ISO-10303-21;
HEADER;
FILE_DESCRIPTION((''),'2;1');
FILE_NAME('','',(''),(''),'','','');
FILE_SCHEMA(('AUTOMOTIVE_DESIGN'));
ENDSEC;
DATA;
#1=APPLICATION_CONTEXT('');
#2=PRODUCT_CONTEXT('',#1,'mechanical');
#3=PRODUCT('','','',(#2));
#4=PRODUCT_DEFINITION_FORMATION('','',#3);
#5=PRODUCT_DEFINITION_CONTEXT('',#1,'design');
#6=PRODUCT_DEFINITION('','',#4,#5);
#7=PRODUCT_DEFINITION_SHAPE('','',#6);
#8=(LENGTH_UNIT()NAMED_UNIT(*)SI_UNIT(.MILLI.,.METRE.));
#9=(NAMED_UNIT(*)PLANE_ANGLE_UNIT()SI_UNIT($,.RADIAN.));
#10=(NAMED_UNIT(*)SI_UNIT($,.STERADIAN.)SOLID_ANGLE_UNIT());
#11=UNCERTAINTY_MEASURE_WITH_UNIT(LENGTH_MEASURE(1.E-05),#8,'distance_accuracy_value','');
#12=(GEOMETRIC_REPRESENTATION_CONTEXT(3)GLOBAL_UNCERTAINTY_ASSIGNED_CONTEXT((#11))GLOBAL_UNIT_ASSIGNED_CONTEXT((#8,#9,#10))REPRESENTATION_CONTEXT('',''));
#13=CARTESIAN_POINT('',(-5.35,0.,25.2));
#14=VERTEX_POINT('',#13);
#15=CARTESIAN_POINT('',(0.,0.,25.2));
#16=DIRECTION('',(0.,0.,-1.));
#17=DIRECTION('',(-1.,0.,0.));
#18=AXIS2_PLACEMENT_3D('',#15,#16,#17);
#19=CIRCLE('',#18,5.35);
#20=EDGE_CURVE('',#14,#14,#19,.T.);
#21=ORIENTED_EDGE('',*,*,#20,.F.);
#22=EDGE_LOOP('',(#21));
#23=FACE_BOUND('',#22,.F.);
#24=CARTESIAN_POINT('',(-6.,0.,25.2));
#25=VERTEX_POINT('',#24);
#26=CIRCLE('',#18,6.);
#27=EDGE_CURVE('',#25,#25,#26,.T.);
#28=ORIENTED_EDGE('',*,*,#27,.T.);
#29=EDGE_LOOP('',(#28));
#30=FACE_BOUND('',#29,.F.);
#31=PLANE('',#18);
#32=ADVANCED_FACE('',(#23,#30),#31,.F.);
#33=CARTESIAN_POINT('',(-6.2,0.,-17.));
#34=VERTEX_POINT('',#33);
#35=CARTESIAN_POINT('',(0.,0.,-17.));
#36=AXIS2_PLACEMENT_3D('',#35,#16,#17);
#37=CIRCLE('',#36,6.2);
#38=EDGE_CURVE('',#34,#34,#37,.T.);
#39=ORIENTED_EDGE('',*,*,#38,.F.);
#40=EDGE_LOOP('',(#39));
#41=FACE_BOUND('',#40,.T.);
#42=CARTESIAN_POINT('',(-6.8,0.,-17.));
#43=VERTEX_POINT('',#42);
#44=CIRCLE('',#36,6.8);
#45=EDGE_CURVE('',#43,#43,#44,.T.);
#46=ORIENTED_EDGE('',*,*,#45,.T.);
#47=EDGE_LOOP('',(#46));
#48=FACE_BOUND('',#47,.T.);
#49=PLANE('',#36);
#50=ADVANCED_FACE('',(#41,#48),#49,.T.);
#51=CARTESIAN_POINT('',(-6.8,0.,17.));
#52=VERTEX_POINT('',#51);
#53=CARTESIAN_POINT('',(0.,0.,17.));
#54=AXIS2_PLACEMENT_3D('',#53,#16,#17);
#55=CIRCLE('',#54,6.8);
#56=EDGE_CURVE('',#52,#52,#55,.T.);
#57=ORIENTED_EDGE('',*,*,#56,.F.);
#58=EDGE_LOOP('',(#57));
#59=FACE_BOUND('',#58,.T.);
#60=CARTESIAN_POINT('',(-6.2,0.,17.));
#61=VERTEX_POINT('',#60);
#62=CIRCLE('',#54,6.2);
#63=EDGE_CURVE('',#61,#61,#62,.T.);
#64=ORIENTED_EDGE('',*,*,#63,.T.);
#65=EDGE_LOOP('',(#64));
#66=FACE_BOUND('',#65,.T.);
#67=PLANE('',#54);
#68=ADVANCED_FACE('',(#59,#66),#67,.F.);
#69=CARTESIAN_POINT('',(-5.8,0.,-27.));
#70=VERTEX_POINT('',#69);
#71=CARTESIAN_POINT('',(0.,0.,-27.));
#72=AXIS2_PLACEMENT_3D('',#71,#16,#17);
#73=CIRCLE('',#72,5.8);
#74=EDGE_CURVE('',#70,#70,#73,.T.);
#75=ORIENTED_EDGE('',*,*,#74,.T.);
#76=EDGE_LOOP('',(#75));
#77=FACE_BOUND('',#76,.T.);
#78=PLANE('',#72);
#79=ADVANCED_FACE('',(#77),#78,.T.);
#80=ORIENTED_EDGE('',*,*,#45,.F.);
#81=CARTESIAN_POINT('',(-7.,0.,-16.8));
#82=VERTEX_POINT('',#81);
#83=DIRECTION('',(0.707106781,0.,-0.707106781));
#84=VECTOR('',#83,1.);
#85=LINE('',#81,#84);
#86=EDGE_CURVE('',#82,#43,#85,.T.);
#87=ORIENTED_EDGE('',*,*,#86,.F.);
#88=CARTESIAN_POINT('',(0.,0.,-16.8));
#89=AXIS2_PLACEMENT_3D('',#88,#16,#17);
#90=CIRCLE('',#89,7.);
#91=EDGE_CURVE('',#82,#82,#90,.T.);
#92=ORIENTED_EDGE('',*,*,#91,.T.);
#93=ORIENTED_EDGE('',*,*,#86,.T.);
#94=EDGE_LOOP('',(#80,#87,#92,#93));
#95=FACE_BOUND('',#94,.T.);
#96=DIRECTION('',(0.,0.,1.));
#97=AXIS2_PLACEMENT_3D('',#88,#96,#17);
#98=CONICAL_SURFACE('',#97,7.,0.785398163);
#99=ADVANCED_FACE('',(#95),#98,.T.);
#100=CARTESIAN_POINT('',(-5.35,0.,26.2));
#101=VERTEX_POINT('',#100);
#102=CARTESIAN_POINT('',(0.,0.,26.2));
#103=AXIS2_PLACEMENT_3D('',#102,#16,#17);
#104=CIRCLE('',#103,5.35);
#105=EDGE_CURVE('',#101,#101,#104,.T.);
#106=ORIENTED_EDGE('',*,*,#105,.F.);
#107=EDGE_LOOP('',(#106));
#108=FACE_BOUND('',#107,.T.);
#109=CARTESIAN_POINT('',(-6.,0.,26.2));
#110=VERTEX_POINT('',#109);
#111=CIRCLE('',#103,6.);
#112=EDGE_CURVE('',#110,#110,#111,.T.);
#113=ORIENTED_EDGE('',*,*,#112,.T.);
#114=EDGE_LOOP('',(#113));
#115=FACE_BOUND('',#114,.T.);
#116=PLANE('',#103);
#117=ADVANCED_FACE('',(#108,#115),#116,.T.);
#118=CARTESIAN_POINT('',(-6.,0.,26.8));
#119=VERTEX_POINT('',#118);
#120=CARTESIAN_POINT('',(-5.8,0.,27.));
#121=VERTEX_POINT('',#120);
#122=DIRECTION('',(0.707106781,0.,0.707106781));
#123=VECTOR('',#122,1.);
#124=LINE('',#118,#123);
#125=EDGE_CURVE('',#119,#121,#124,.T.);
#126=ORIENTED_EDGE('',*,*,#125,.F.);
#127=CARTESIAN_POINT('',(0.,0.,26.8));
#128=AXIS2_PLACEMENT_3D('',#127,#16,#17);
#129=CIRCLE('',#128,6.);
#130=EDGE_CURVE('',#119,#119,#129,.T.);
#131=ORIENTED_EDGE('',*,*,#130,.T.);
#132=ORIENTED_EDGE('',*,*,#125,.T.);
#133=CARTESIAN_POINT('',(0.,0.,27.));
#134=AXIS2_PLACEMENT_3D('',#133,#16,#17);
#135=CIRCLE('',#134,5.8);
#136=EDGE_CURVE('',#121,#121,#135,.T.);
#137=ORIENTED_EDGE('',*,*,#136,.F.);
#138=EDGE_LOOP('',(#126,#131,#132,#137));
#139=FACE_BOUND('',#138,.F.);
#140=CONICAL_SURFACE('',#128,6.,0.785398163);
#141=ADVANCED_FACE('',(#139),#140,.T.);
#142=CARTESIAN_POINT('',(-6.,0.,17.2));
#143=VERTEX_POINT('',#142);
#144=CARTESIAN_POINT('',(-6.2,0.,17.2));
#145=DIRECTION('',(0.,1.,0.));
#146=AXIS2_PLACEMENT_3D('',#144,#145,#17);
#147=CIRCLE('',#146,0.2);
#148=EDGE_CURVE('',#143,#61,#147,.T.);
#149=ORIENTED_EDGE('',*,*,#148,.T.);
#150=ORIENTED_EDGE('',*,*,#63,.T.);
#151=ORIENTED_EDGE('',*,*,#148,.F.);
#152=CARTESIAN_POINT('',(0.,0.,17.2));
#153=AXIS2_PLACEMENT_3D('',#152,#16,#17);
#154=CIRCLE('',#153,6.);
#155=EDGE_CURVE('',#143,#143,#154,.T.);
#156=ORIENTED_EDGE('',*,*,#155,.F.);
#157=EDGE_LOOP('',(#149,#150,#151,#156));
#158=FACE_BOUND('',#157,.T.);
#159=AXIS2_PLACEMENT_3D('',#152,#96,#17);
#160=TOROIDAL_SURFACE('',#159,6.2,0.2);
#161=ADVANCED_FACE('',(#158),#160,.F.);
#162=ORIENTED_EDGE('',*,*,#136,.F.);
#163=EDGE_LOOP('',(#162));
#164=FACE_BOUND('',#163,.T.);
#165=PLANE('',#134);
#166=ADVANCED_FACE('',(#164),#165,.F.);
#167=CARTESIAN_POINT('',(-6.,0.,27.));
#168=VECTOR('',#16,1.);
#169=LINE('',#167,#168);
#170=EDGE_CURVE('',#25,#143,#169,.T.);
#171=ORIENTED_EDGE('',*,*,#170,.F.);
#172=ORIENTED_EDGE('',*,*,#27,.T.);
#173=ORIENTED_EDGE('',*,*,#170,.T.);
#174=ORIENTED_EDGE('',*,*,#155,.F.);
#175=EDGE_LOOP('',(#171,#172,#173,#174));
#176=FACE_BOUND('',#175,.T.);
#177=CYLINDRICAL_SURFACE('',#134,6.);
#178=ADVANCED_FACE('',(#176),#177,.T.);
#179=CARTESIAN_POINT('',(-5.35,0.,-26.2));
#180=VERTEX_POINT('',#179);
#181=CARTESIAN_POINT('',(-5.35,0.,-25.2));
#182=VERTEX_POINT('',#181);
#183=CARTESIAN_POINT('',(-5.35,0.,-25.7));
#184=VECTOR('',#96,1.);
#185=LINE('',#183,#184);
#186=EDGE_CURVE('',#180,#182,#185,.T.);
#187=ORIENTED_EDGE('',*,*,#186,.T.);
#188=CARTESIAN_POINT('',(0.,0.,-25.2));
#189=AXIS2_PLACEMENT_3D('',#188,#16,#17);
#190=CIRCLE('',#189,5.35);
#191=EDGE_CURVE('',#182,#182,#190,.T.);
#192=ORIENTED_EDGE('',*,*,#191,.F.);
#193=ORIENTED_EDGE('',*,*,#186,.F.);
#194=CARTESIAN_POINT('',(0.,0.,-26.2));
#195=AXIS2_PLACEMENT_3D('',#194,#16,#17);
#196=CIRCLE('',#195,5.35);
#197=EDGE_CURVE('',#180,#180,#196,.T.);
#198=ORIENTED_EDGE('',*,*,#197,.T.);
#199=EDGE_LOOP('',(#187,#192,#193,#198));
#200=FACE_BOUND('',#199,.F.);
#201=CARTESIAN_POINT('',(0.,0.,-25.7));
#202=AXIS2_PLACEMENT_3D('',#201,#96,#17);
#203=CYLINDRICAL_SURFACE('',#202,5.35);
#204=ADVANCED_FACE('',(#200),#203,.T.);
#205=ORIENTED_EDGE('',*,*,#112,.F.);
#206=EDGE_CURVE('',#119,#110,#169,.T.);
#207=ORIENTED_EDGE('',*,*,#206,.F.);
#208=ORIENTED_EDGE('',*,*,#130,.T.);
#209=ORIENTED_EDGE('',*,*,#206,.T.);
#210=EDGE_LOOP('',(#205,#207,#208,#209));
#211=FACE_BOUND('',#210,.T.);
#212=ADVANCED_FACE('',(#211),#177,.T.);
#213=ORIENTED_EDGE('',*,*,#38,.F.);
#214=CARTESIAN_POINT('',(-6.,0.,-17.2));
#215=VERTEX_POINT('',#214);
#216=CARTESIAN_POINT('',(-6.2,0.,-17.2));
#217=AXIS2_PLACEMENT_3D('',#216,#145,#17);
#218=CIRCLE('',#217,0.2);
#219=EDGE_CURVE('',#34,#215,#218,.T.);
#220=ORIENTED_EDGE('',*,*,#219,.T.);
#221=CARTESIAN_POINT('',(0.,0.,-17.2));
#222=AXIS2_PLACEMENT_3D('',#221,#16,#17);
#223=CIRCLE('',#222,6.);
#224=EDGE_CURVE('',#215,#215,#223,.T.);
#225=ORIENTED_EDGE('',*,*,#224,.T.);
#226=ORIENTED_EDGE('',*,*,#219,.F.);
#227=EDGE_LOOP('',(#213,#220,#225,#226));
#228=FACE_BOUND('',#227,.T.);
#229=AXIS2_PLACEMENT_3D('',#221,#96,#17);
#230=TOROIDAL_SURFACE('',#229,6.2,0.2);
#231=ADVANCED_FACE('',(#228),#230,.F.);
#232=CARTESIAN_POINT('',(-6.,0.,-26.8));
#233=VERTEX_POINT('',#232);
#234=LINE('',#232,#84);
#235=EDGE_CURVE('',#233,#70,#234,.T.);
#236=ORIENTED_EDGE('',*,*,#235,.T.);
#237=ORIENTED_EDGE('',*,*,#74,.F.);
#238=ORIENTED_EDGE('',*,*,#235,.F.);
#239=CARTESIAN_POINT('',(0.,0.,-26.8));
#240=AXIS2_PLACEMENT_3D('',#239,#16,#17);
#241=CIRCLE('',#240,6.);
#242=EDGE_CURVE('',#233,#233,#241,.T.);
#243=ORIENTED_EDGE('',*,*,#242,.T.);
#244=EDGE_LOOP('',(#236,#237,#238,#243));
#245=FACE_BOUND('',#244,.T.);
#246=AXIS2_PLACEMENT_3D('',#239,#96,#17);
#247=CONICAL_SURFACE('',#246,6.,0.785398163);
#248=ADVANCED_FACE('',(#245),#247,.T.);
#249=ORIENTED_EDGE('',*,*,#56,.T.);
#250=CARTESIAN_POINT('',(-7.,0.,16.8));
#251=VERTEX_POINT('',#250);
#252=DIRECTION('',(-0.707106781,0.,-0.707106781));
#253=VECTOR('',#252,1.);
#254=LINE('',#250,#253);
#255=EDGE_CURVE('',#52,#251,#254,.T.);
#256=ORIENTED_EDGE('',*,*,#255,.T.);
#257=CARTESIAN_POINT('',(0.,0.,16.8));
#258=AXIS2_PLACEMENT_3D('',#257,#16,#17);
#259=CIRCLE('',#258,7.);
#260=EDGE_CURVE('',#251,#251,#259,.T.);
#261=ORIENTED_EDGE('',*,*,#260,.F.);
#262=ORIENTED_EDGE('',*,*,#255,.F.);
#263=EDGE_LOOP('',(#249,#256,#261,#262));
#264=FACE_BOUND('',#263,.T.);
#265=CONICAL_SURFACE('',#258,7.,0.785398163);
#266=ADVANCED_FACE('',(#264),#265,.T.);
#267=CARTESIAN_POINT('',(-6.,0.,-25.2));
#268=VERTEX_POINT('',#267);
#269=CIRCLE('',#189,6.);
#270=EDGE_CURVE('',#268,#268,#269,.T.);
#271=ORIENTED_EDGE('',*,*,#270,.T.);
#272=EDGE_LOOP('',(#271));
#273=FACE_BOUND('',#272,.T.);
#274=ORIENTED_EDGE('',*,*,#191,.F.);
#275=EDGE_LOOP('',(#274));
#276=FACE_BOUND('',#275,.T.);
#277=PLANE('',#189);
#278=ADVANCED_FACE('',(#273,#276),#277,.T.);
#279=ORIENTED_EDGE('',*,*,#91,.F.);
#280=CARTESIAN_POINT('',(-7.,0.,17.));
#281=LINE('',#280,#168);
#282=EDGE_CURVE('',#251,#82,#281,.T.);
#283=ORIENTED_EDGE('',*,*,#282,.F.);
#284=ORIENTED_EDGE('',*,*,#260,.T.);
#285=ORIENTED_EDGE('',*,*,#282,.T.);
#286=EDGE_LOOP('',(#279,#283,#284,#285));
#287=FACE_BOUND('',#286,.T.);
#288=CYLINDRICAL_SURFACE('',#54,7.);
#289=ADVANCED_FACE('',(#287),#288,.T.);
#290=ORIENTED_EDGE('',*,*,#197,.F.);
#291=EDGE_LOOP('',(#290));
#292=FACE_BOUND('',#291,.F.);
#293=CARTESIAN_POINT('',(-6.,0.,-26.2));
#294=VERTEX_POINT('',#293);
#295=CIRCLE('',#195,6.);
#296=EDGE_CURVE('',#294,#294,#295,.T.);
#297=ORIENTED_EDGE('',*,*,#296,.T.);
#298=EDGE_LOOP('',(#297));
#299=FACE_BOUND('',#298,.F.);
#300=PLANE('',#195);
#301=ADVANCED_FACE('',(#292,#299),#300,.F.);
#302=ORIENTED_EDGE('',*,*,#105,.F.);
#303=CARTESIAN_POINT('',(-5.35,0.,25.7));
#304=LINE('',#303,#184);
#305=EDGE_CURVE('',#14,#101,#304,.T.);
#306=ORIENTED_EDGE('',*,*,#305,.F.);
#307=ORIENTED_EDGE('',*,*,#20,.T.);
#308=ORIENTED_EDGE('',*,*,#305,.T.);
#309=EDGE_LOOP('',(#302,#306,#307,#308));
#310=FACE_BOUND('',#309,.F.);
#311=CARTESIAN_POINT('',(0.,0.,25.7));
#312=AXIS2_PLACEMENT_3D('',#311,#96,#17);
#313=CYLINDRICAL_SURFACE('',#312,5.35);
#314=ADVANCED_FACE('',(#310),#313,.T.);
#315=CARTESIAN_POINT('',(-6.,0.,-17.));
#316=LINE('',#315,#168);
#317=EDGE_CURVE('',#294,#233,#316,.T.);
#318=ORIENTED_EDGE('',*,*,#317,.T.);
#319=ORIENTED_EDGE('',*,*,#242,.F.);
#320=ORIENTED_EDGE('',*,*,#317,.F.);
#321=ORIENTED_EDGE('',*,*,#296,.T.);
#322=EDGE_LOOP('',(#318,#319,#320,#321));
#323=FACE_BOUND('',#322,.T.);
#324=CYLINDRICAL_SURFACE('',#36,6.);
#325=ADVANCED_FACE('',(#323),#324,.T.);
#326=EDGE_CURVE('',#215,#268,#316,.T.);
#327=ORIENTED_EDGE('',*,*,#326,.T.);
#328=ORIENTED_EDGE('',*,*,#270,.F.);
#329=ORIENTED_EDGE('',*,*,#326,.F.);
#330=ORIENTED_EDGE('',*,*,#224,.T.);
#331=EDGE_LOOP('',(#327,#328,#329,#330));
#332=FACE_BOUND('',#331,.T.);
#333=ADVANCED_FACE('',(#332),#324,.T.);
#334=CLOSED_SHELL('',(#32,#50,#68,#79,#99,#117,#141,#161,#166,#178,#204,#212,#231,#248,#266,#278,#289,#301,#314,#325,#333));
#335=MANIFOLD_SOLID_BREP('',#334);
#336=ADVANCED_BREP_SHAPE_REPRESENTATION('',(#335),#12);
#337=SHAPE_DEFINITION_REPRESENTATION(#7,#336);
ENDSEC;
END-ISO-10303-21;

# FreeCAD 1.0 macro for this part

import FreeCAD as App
import Part
import Sketcher
from FreeCAD import Vector


def edges_at(feature, points):
    """Names of the edges that pass closest to the given points."""
    edges = feature.Shape.Edges
    near = lambda p: min(range(len(edges)), key=lambda i: edges[i].distToShape(Part.Vertex(*p))[0])
    return sorted({f"Edge{near(p) + 1}" for p in points})


def add_polygon(sketch, points):
    """Adds a closed chain of lines whose ends are joined by coincident constraints."""
    first, n = sketch.GeometryCount, len(points)
    for a, b in zip(points, points[1:] + points[:1]):
        sketch.addGeometry(Part.LineSegment(App.Vector(*a, 0), App.Vector(*b, 0)), False)
    for i in range(n):
        sketch.addConstraint(Sketcher.Constraint("Coincident", first + i, 2, first + (i + 1) % n, 1))

doc = App.newDocument("Part")
params = doc.addObject("Spreadsheet::Sheet", "Params")
for row, (alias, value) in enumerate([
    ("sketch1_width", "6 mm"),
    ("sketch1_width2", "1 mm"),
    ("sketch1_height", "54 mm"),
    ("sketch1_height2", "10 mm"),
    ("revolution_angle", "360 deg"),
    ("sketch2_height", "1 mm"),
    ("sketch2_width", "0.65 mm"),
    ("groove_angle", "360 deg"),
    ("fillet_radius", "0.2 mm"),
    ("chamfer_size", "0.2 mm"),
], start=1):
    params.set(f"A{row}", alias)
    params.set(f"B{row}", "=" + value)
    params.setAlias(f"B{row}", alias)

body = doc.addObject("PartDesign::Body", "Body")

# Sketch on XZ plane
sketch1 = doc.addObject("Sketcher::SketchObject", "Sketch")
body.addObject(sketch1)
sketch1.AttachmentSupport = (doc.XZ_Plane, [""])
sketch1.MapMode = "FlatFace"
add_polygon(sketch1, [(0, -27), (0, 27), (-6, 27), (-6, 17), (-7, 17), (-7, -17), (-6, -17), (-6, -27)])  # lines 0-7
sketch1.addConstraint(Sketcher.Constraint("Vertical", 0))
sketch1.addConstraint(Sketcher.Constraint("Horizontal", 1))
sketch1.addConstraint(Sketcher.Constraint("Vertical", 2))
sketch1.addConstraint(Sketcher.Constraint("Horizontal", 3))
sketch1.addConstraint(Sketcher.Constraint("Vertical", 4))
sketch1.addConstraint(Sketcher.Constraint("Horizontal", 5))
sketch1.addConstraint(Sketcher.Constraint("Vertical", 6))
sketch1.addConstraint(Sketcher.Constraint("Horizontal", 7))
sketch1.addConstraint(Sketcher.Constraint("Symmetric", 0, 2, 7, 2, -1, 1))
sketch1.addConstraint(Sketcher.Constraint("Symmetric", 2, 2, 5, 2, -1))
sketch1.addConstraint(Sketcher.Constraint("DistanceX", 1, 2, 1, 1, 6.0))
sketch1.addConstraint(Sketcher.Constraint("DistanceX", 3, 2, 3, 1, 1.0))
sketch1.addConstraint(Sketcher.Constraint("DistanceY", 0, 1, 0, 2, 54.0))
sketch1.addConstraint(Sketcher.Constraint("DistanceY", 2, 2, 2, 1, 10.0))
sketch1.setExpression("Constraints[18]", "Params.sketch1_width")
sketch1.setExpression("Constraints[19]", "Params.sketch1_width2")
sketch1.setExpression("Constraints[20]", "Params.sketch1_height")
sketch1.setExpression("Constraints[21]", "Params.sketch1_height2")
revolution = doc.addObject("PartDesign::Revolution", "Revolution")
body.addObject(revolution)
revolution.Profile = sketch1
revolution.ReferenceAxis = (sketch1, ["V_Axis"])
revolution.setExpression("Angle", "Params.revolution_angle")

# Sketch on XZ plane
sketch2 = doc.addObject("Sketcher::SketchObject", "Sketch001")
body.addObject(sketch2)
sketch2.AttachmentSupport = (doc.XZ_Plane, [""])
sketch2.MapMode = "FlatFace"
add_polygon(sketch2, [(-6, 26.2), (-6, 25.2), (-5.3, 25.2), (-5.3, 26.2)])  # lines 0-3
add_polygon(sketch2, [(-6, -25.2), (-6, -26.2), (-5.3, -26.2), (-5.3, -25.2)])  # lines 4-7
sketch2.addConstraint(Sketcher.Constraint("Vertical", 0))
sketch2.addConstraint(Sketcher.Constraint("Horizontal", 1))
sketch2.addConstraint(Sketcher.Constraint("Vertical", 2))
sketch2.addConstraint(Sketcher.Constraint("Horizontal", 3))
sketch2.addConstraint(Sketcher.Constraint("Vertical", 4))
sketch2.addConstraint(Sketcher.Constraint("Horizontal", 5))
sketch2.addConstraint(Sketcher.Constraint("Vertical", 6))
sketch2.addConstraint(Sketcher.Constraint("Horizontal", 7))
sketch2.addConstraint(Sketcher.Constraint("Symmetric", 3, 2, 4, 2, -1))
sketch2.addConstraint(Sketcher.Constraint("Symmetric", 1, 2, 6, 2, -1))
sketch2.addConstraint(Sketcher.Constraint("DistanceY", 0, 2, 0, 1, 1.0))
sketch2.addConstraint(Sketcher.Constraint("DistanceX", 0, 2, -1, 1, 6.0))
sketch2.addConstraint(Sketcher.Constraint("DistanceX", 1, 1, 1, 2, 0.65))
sketch2.addConstraint(Sketcher.Constraint("DistanceY", -1, 1, 0, 2, 25.2))
sketch2.setExpression("Constraints[18]", "Params.sketch2_height")
sketch2.setExpression("Constraints[20]", "Params.sketch2_width")
groove = doc.addObject("PartDesign::Groove", "Groove")
body.addObject(groove)
groove.Profile = sketch2
groove.ReferenceAxis = (sketch2, ["V_Axis"])
groove.setExpression("Angle", "Params.groove_angle")
doc.recompute()

fillet = doc.addObject("PartDesign::Fillet", "Fillet")
body.addObject(fillet)
fillet.Base = (groove, edges_at(groove, [(6, 0, 17), (6, 0, -17)]))
fillet.setExpression("Radius", "Params.fillet_radius")
doc.recompute()

chamfer = doc.addObject("PartDesign::Chamfer", "Chamfer")
body.addObject(chamfer)
chamfer.Base = (fillet, edges_at(fillet, [
    (7, 0, -17),
    (7, 0, 17),
    (6, 0, 27),
    (6, 0, -27),
]))
chamfer.setExpression("Size", "Params.chamfer_size")

doc.recompute()
